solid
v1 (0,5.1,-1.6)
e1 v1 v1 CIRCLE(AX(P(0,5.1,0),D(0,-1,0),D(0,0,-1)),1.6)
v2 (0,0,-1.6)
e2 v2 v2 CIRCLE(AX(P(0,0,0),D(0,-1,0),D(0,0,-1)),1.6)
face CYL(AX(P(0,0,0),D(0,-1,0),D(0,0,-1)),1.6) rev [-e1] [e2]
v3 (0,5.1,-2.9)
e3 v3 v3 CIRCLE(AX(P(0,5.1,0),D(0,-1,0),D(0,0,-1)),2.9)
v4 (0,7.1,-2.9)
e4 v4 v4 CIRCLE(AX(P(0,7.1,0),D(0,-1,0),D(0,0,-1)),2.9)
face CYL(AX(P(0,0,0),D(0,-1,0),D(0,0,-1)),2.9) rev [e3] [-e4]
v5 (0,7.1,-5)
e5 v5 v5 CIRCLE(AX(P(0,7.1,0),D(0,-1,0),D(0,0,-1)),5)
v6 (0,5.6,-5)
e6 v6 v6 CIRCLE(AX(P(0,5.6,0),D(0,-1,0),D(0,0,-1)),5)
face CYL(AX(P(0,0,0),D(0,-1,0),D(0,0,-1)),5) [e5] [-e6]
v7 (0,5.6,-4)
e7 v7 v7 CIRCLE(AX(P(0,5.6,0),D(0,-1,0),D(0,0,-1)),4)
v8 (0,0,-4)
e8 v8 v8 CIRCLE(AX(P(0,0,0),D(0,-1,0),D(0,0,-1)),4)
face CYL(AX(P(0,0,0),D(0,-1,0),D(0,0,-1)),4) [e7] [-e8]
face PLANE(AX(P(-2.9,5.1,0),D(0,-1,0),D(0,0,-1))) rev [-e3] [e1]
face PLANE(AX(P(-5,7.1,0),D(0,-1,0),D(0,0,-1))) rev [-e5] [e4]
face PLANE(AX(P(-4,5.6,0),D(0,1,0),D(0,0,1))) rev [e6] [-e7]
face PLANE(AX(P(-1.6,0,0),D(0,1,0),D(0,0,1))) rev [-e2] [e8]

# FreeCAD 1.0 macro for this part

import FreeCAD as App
import Part
import Sketcher

V = App.Vector

doc = App.newDocument("Part")
body = doc.addObject("PartDesign::Body", "Body")

sketch1 = body.newObject("Sketcher::SketchObject", "Sketch")
sketch1.AttachmentSupport = (doc.getObject("XY_Plane"), [""])
sketch1.MapMode = "FlatFace"
sketch1.addGeometry(Part.LineSegment(V(-4, 0, 0), V(-1.6, 0, 0)), False)
sketch1.addGeometry(Part.LineSegment(V(-1.6, 0, 0), V(-1.6, 5.1, 0)), False)
sketch1.addGeometry(Part.LineSegment(V(-1.6, 5.1, 0), V(-2.9, 5.1, 0)), False)
sketch1.addGeometry(Part.LineSegment(V(-2.9, 5.1, 0), V(-2.9, 7.1, 0)), False)
sketch1.addGeometry(Part.LineSegment(V(-2.9, 7.1, 0), V(-5, 7.1, 0)), False)
sketch1.addGeometry(Part.LineSegment(V(-5, 7.1, 0), V(-5, 5.6, 0)), False)
sketch1.addGeometry(Part.LineSegment(V(-5, 5.6, 0), V(-4, 5.6, 0)), False)
sketch1.addGeometry(Part.LineSegment(V(-4, 5.6, 0), V(-4, 0, 0)), False)
sketch1.addConstraint(Sketcher.Constraint("Coincident", 0, 2, 1, 1))
sketch1.addConstraint(Sketcher.Constraint("Coincident", 1, 2, 2, 1))
sketch1.addConstraint(Sketcher.Constraint("Coincident", 2, 2, 3, 1))
sketch1.addConstraint(Sketcher.Constraint("Coincident", 3, 2, 4, 1))
sketch1.addConstraint(Sketcher.Constraint("Coincident", 4, 2, 5, 1))
sketch1.addConstraint(Sketcher.Constraint("Coincident", 5, 2, 6, 1))
sketch1.addConstraint(Sketcher.Constraint("Coincident", 6, 2, 7, 1))
sketch1.addConstraint(Sketcher.Constraint("Coincident", 7, 2, 0, 1))
sketch1.addConstraint(Sketcher.Constraint("Horizontal", 0))
sketch1.addConstraint(Sketcher.Constraint("Vertical", 1))
sketch1.addConstraint(Sketcher.Constraint("Horizontal", 2))
sketch1.addConstraint(Sketcher.Constraint("Vertical", 3))
sketch1.addConstraint(Sketcher.Constraint("Horizontal", 4))
sketch1.addConstraint(Sketcher.Constraint("Vertical", 5))
sketch1.addConstraint(Sketcher.Constraint("Horizontal", 6))
sketch1.addConstraint(Sketcher.Constraint("Vertical", 7))
sketch1.addConstraint(Sketcher.Constraint("PointOnObject", 0, 2, -1))
sketch1.addConstraint(Sketcher.Constraint("DistanceX", 6, 1, 6, 2, 1.0))
sketch1.addConstraint(Sketcher.Constraint("DistanceY", 3, 1, 3, 2, 2.0))
sketch1.addConstraint(Sketcher.Constraint("DistanceX", 0, 1, 0, 2, 2.4))
sketch1.addConstraint(Sketcher.Constraint("DistanceX", 2, 2, 2, 1, 1.3))
sketch1.addConstraint(Sketcher.Constraint("DistanceY", 1, 1, 1, 2, 5.1))
sketch1.addConstraint(Sketcher.Constraint("DistanceY", 5, 2, 5, 1, 1.5))
sketch1.addConstraint(Sketcher.Constraint("DistanceX", 4, 2, -1, 1, 5.0))
revolution = body.newObject("PartDesign::Revolution", "Revolution")
revolution.Profile = sketch1
revolution.ReferenceAxis = (sketch1, ["V_Axis"])
revolution.Angle = 360

doc.recompute()
